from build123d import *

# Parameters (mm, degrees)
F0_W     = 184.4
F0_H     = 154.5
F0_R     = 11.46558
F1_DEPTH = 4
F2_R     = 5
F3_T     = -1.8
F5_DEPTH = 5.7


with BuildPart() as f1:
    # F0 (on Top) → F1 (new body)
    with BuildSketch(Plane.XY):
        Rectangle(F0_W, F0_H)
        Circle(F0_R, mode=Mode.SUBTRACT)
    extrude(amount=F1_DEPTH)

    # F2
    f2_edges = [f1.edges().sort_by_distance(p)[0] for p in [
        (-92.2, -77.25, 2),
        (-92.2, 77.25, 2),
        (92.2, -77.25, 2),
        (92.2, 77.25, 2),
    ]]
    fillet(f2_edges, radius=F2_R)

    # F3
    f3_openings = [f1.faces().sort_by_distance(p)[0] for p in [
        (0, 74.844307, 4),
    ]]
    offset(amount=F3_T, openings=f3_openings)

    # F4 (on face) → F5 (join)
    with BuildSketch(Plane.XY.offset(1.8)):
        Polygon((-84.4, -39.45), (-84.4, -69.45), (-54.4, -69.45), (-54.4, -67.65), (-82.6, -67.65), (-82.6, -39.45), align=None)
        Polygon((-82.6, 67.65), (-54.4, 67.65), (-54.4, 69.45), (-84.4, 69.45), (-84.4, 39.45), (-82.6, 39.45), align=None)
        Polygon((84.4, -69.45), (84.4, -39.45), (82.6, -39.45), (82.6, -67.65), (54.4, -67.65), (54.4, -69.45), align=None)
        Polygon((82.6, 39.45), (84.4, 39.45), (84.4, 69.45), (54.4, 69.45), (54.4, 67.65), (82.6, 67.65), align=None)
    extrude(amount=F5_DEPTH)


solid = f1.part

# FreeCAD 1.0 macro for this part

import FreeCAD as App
import Part
import Sketcher

V = App.Vector


def edges_at(feature, points):
    """Names of the edges that pass closest to the given points."""
    edges = feature.Shape.Edges
    near = lambda p: min(range(len(edges)), key=lambda i: edges[i].distToShape(Part.Vertex(*p))[0])
    return sorted({f"Edge{near(p) + 1}" for p in points})


def faces_at(feature, points):
    """Names of the faces that lie closest to the given points."""
    faces = feature.Shape.Faces
    near = lambda p: min(range(len(faces)), key=lambda i: faces[i].distToShape(Part.Vertex(*p))[0])
    return sorted({f"Face{near(p) + 1}" for p in points})

doc = App.newDocument("Part")
body = doc.addObject("PartDesign::Body", "Body")

sketch1 = body.newObject("Sketcher::SketchObject", "Sketch")
sketch1.AttachmentSupport = (doc.getObject("XY_Plane"), [""])
sketch1.MapMode = "FlatFace"
sketch1.addGeometry([
    Part.LineSegment(V(-92, 77, 0), V(-92, -77, 0)),
    Part.LineSegment(V(-92, -77, 0), V(92, -77, 0)),
    Part.LineSegment(V(92, -77, 0), V(92, 77, 0)),
    Part.LineSegment(V(92, 77, 0), V(-92, 77, 0)),
    Part.Circle(V(0, 0, 0), V(0, 0, 1), 11),
], False)
sketch1.addConstraint([
    Sketcher.Constraint("Coincident", 0, 2, 1, 1),
    Sketcher.Constraint("Coincident", 1, 2, 2, 1),
    Sketcher.Constraint("Coincident", 2, 2, 3, 1),
    Sketcher.Constraint("Coincident", 3, 2, 0, 1),
    Sketcher.Constraint("Vertical", 0),
    Sketcher.Constraint("Horizontal", 1),
    Sketcher.Constraint("Vertical", 2),
    Sketcher.Constraint("Horizontal", 3),
    Sketcher.Constraint("Coincident", 4, 3, -1, 1),
    Sketcher.Constraint("Symmetric", 0, 2, 2, 2, -1, 1),
    Sketcher.Constraint("DistanceX", 1, 1, 1, 2, 184.4),
    Sketcher.Constraint("DistanceY", 0, 2, 0, 1, 154.5),
    Sketcher.Constraint("Diameter", 4, 22.93116),
])
pad1 = body.newObject("PartDesign::Pad", "Pad")
pad1.Profile = sketch1
pad1.Length = 4
doc.recompute()

fillet = body.newObject("PartDesign::Fillet", "Fillet")
fillet.Base = (pad1, edges_at(pad1, [
    (-92.2, -77.25, 2),
    (-92.2, 77.25, 2),
    (92.2, -77.25, 2),
    (92.2, 77.25, 2),
]))
fillet.Radius = 5
doc.recompute()

thickness = body.newObject("PartDesign::Thickness", "Thickness")
thickness.Base = (fillet, faces_at(fillet, [(-36.88, -30.9, 4)]))
thickness.Value = 1.8
thickness.Reversed = True
thickness.Join = "Arc"

sketch2 = body.newObject("Sketcher::SketchObject", "Sketch001")
sketch2.AttachmentSupport = (doc.getObject("XY_Plane"), [""])
sketch2.MapMode = "FlatFace"
sketch2.AttachmentOffset = App.Placement(V(0, 0, 1.8), App.Rotation())
sketch2.addGeometry([
    Part.LineSegment(V(-84.4, -39.5, 0), V(-84.4, -69.5, 0)),
    Part.LineSegment(V(-84.4, -69.5, 0), V(-54.4, -69.5, 0)),
    Part.LineSegment(V(-54.4, -69.5, 0), V(-54.4, -67.7, 0)),
    Part.LineSegment(V(-54.4, -67.7, 0), V(-82.6, -67.7, 0)),
    Part.LineSegment(V(-82.6, -67.7, 0), V(-82.6, -39.5, 0)),
    Part.LineSegment(V(-82.6, -39.5, 0), V(-84.4, -39.5, 0)),
    Part.LineSegment(V(-82.6, 67.7, 0), V(-54.4, 67.7, 0)),
    Part.LineSegment(V(-54.4, 67.7, 0), V(-54.4, 69.5, 0)),
    Part.LineSegment(V(-54.4, 69.5, 0), V(-84.4, 69.5, 0)),
    Part.LineSegment(V(-84.4, 69.5, 0), V(-84.4, 39.5, 0)),
    Part.LineSegment(V(-84.4, 39.5, 0), V(-82.6, 39.5, 0)),
    Part.LineSegment(V(-82.6, 39.5, 0), V(-82.6, 67.7, 0)),
    Part.LineSegment(V(84.4, -69.5, 0), V(84.4, -39.5, 0)),
    Part.LineSegment(V(84.4, -39.5, 0), V(82.6, -39.5, 0)),
    Part.LineSegment(V(82.6, -39.5, 0), V(82.6, -67.7, 0)),
    Part.LineSegment(V(82.6, -67.7, 0), V(54.4, -67.7, 0)),
    Part.LineSegment(V(54.4, -67.7, 0), V(54.4, -69.5, 0)),
    Part.LineSegment(V(54.4, -69.5, 0), V(84.4, -69.5, 0)),
    Part.LineSegment(V(82.6, 39.5, 0), V(84.4, 39.5, 0)),
    Part.LineSegment(V(84.4, 39.5, 0), V(84.4, 69.5, 0)),
    Part.LineSegment(V(84.4, 69.5, 0), V(54.4, 69.5, 0)),
    Part.LineSegment(V(54.4, 69.5, 0), V(54.4, 67.7, 0)),
    Part.LineSegment(V(54.4, 67.7, 0), V(82.6, 67.7, 0)),
    Part.LineSegment(V(82.6, 67.7, 0), V(82.6, 39.5, 0)),
], False)
sketch2.addConstraint([
    Sketcher.Constraint("Coincident", 0, 2, 1, 1),
    Sketcher.Constraint("Coincident", 1, 2, 2, 1),
    Sketcher.Constraint("Coincident", 2, 2, 3, 1),
    Sketcher.Constraint("Coincident", 3, 2, 4, 1),
    Sketcher.Constraint("Coincident", 4, 2, 5, 1),
    Sketcher.Constraint("Coincident", 5, 2, 0, 1),
    Sketcher.Constraint("Coincident", 6, 2, 7, 1),
    Sketcher.Constraint("Coincident", 7, 2, 8, 1),
    Sketcher.Constraint("Coincident", 8, 2, 9, 1),
    Sketcher.Constraint("Coincident", 9, 2, 10, 1),
    Sketcher.Constraint("Coincident", 10, 2, 11, 1),
    Sketcher.Constraint("Coincident", 11, 2, 6, 1),
    Sketcher.Constraint("Coincident", 12, 2, 13, 1),
    Sketcher.Constraint("Coincident", 13, 2, 14, 1),
    Sketcher.Constraint("Coincident", 14, 2, 15, 1),
    Sketcher.Constraint("Coincident", 15, 2, 16, 1),
    Sketcher.Constraint("Coincident", 16, 2, 17, 1),
    Sketcher.Constraint("Coincident", 17, 2, 12, 1),
    Sketcher.Constraint("Coincident", 18, 2, 19, 1),
    Sketcher.Constraint("Coincident", 19, 2, 20, 1),
    Sketcher.Constraint("Coincident", 20, 2, 21, 1),
    Sketcher.Constraint("Coincident", 21, 2, 22, 1),
    Sketcher.Constraint("Coincident", 22, 2, 23, 1),
    Sketcher.Constraint("Coincident", 23, 2, 18, 1),
    Sketcher.Constraint("Vertical", 0),
    Sketcher.Constraint("Horizontal", 1),
    Sketcher.Constraint("Vertical", 2),
    Sketcher.Constraint("Horizontal", 3),
    Sketcher.Constraint("Vertical", 4),
    Sketcher.Constraint("Horizontal", 5),
    Sketcher.Constraint("Horizontal", 6),
    Sketcher.Constraint("Vertical", 7),
    Sketcher.Constraint("Horizontal", 8),
    Sketcher.Constraint("Vertical", 9),
    Sketcher.Constraint("Horizontal", 10),
    Sketcher.Constraint("Vertical", 11),
    Sketcher.Constraint("Vertical", 12),
    Sketcher.Constraint("Horizontal", 13),
    Sketcher.Constraint("Vertical", 14),
    Sketcher.Constraint("Horizontal", 15),
    Sketcher.Constraint("Vertical", 16),
    Sketcher.Constraint("Horizontal", 17),
    Sketcher.Constraint("Horizontal", 18),
    Sketcher.Constraint("Vertical", 19),
    Sketcher.Constraint("Horizontal", 20),
    Sketcher.Constraint("Vertical", 21),
    Sketcher.Constraint("Horizontal", 22),
    Sketcher.Constraint("Vertical", 23),
    Sketcher.Constraint("Symmetric", 9, 2, 12, 2, -1, 1),
    Sketcher.Constraint("Symmetric", 11, 2, 14, 2, -1, 1),
    Sketcher.Constraint("Symmetric", 7, 2, 16, 2, -1, 1),
    Sketcher.Constraint("Symmetric", 5, 2, 18, 2, -1, 1),
    Sketcher.Constraint("Symmetric", 1, 2, 20, 2, -1, 1),
    Sketcher.Constraint("Symmetric", 3, 2, 22, 2, -1, 1),
    Sketcher.Constraint("Symmetric", 5, 2, 12, 2, -2),
    Sketcher.Constraint("Symmetric", 3, 2, 14, 2, -2),
    Sketcher.Constraint("Symmetric", 1, 2, 16, 2, -2),
    Sketcher.Constraint("Equal", 20, 0),
    Sketcher.Constraint("Equal", 18, 2),
    Sketcher.Constraint("DistanceX", 1, 1, 1, 2, 30.0),
    Sketcher.Constraint("DistanceX", 3, 2, 3, 1, 28.2),
    Sketcher.Constraint("DistanceX", 4, 2, 12, 2, 167.0),
    Sketcher.Constraint("DistanceY", 4, 2, 6, 2, 107.1),
])
pad2 = body.newObject("PartDesign::Pad", "Pad001")
pad2.Profile = sketch2
pad2.Length = 5.7

doc.recompute()
